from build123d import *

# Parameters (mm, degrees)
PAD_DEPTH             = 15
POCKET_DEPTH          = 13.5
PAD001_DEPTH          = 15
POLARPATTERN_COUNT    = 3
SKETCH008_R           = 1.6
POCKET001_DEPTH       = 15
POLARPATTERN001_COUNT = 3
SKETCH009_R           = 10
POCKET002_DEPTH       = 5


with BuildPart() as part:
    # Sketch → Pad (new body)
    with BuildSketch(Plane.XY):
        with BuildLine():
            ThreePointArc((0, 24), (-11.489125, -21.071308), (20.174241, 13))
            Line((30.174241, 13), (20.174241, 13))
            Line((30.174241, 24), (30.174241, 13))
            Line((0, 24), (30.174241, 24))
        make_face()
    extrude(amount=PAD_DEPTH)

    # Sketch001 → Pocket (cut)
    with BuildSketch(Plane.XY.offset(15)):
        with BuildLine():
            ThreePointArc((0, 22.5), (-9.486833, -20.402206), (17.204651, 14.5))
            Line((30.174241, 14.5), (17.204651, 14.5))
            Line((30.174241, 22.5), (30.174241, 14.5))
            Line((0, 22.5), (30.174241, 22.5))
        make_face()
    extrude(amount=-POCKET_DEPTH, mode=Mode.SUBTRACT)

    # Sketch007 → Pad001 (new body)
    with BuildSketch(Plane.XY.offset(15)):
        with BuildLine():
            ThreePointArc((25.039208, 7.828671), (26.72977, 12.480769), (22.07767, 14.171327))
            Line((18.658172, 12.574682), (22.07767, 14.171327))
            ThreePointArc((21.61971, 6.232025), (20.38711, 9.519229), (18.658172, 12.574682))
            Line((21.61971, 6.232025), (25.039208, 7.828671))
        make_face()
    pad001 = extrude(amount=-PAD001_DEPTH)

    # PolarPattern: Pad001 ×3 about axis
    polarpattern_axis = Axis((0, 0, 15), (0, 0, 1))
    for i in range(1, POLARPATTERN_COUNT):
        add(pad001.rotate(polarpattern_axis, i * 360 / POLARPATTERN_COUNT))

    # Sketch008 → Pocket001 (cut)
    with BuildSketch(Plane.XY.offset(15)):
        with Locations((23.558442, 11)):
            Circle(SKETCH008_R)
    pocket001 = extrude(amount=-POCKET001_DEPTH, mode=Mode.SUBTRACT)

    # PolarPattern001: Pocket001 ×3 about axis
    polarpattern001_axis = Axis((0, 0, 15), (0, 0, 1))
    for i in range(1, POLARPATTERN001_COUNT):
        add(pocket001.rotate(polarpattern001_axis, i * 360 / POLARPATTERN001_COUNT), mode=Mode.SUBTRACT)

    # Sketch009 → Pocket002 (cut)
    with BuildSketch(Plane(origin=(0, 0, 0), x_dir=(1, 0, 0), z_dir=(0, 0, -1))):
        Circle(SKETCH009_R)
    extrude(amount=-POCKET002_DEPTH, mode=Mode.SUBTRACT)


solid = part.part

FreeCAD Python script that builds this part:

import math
import FreeCAD as App
import Part
import Sketcher
from FreeCAD import Vector
Q = App.Units.Quantity

doc = App.newDocument("Part")
body = doc.addObject("PartDesign::Body", "Body")

# Sketch on XY plane
sketch1 = doc.addObject("Sketcher::SketchObject", "Sketch")
body.addObject(sketch1)
sketch1.AttachmentSupport = (doc.XY_Plane, [""])
sketch1.MapMode = "FlatFace"
sketch1.addGeometry([
    Part.ArcOfCircle(Part.Circle(Vector(0, 0, 0), Vector(0, 0, 1), 24), math.radians(90), math.radians(392.797168)),
    Part.LineSegment(Vector(20.174241, 13, 0), Vector(30.174241, 13, 0)),
    Part.LineSegment(Vector(30.174241, 13, 0), Vector(30.174241, 24, 0)),
    Part.LineSegment(Vector(30.174241, 24, 0), Vector(0, 24, 0)),
], False)
sketch1.addConstraint([
    Sketcher.Constraint("Coincident", 0, 2, 1, 1),
    Sketcher.Constraint("Coincident", 1, 2, 2, 1),
    Sketcher.Constraint("Coincident", 2, 2, 3, 1),
    Sketcher.Constraint("Tangent", 3, 2, 0, 1),
    Sketcher.Constraint("Horizontal", 1),
    Sketcher.Constraint("Vertical", 2),
    Sketcher.Constraint("Horizontal", 3),
    Sketcher.Constraint("Coincident", 0, 3, -1, 1),
    Sketcher.Constraint("Radius", 0, Q("24 mm")),
    Sketcher.Constraint("DistanceX", 1, 1, 1, 2, Q("10 mm")),
    Sketcher.Constraint("DistanceY", 2, 1, 2, 2, Q("11 mm")),
])
pad1 = doc.addObject("PartDesign::Pad", "Pad")
body.addObject(pad1)
pad1.Profile = sketch1
pad1.Length = 15

# Sketch on XY plane
sketch2 = doc.addObject("Sketcher::SketchObject", "Sketch001")
body.addObject(sketch2)
sketch2.AttachmentSupport = (doc.XY_Plane, [""])
sketch2.MapMode = "FlatFace"
sketch2.AttachmentOffset = App.Placement(Vector(0, 0, 15), App.Rotation())
sketch2.addGeometry([
    Part.ArcOfCircle(Part.Circle(Vector(0, 0, 0), Vector(0, 0, 1), 22.5), math.radians(90.000001), math.radians(400.124035)),
    Part.LineSegment(Vector(17.204651, 14.5, 0), Vector(30.174241, 14.5, 0)),
    Part.LineSegment(Vector(30.174241, 14.5, 0), Vector(30.174241, 22.5, 0)),
    Part.LineSegment(Vector(30.174241, 22.5, 0), Vector(0, 22.5, 0)),
], False)
sketch2.addConstraint([
    Sketcher.Constraint("Coincident", 0, 2, 1, 1),
    Sketcher.Constraint("Coincident", 1, 2, 2, 1),
    Sketcher.Constraint("Coincident", 2, 2, 3, 1),
    Sketcher.Constraint("Tangent", 3, 2, 0, 1),
    Sketcher.Constraint("Horizontal", 1),
    Sketcher.Constraint("Vertical", 2),
    Sketcher.Constraint("Horizontal", 3),
    Sketcher.Constraint("Coincident", 0, 3, -1, 1),
    Sketcher.Constraint("Radius", 0, Q("22.5 mm")),
    Sketcher.Constraint("DistanceY", 2, 1, 2, 2, Q("8 mm")),
    Sketcher.Constraint("DistanceX", 1, 1, 1, 2, Q("12.96959 mm")),
])
pocket1 = doc.addObject("PartDesign::Pocket", "Pocket")
body.addObject(pocket1)
pocket1.Profile = sketch2
pocket1.Length = 13.5

# Sketch on XY plane
sketch3 = doc.addObject("Sketcher::SketchObject", "Sketch002")
body.addObject(sketch3)
sketch3.AttachmentSupport = (doc.XY_Plane, [""])
sketch3.MapMode = "FlatFace"
sketch3.AttachmentOffset = App.Placement(Vector(0, 0, 15), App.Rotation())
sketch3.addGeometry([
    Part.ArcOfCircle(Part.Circle(Vector(23.558442, 11, 0), Vector(0, 0, 1), 3.5), math.radians(-64.971054), math.radians(115.029049)),
    Part.LineSegment(Vector(22.07767, 14.171327, 0), Vector(18.658172, 12.574682, 0)),
    Part.ArcOfCircle(Part.Circle(Vector(-0.000047, -0.000021, 0), Vector(0, 0, 1), 22.500051), math.radians(16.079996), math.radians(33.977992)),
    Part.LineSegment(Vector(21.61971, 6.232025, 0), Vector(25.039208, 7.828671, 0)),
], False)
sketch3.addConstraint([
    Sketcher.Constraint("Coincident", 0, 2, 1, 1),
    Sketcher.Constraint("Coincident", 1, 2, 2, 2),
    Sketcher.Constraint("Coincident", 2, 1, 3, 1),
    Sketcher.Constraint("Coincident", 3, 2, 0, 1),
    Sketcher.Constraint("Radius", 0, Q("3.5 mm")),
    Sketcher.Constraint("DistanceY", -1, 1, 0, 3, Q("11 mm")),
    Sketcher.Constraint("Radius", 2, Q("22.500051 mm")),
    Sketcher.Constraint("Distance", 1, Q("3.773889 mm")),
    Sketcher.Constraint("Distance", 3, Q("3.77389 mm")),
    Sketcher.Constraint("DistanceX", -1, 1, 0, 3, Q("23.558442 mm")),
    Sketcher.Constraint("DistanceX", -1, 1, 0, 2, Q("22.07767 mm")),
    Sketcher.Constraint("DistanceY", -1, 1, 1, 2, Q("12.574682 mm")),
    Sketcher.Constraint("DistanceX", -1, 1, 2, 1, Q("21.61971 mm")),
    Sketcher.Constraint("DistanceY", -1, 1, 3, 2, Q("7.828671 mm")),
])
pad2 = doc.addObject("PartDesign::Pad", "Pad001")
body.addObject(pad2)
pad2.Profile = sketch3
pad2.Length = 15
pad2.Reversed = True
doc.recompute()

polarpattern = doc.addObject("PartDesign::PolarPattern", "PolarPattern")
body.addObject(polarpattern)
polarpattern.Originals = [pad2]
polarpattern.Axis = (doc.Z_Axis, [""])
polarpattern.Angle = 360
polarpattern.Occurrences = 3
body.Tip = polarpattern

# Sketch on XY plane
sketch4 = doc.addObject("Sketcher::SketchObject", "Sketch003")
body.addObject(sketch4)
sketch4.AttachmentSupport = (doc.XY_Plane, [""])
sketch4.MapMode = "FlatFace"
sketch4.AttachmentOffset = App.Placement(Vector(0, 0, 15), App.Rotation())
sketch4.addGeometry(Part.Circle(Vector(23.558442, 11, 0), Vector(0, 0, 1), 1.6), False)
sketch4.addConstraint([
    Sketcher.Constraint("Diameter", 0, Q("3.2 mm")),
    Sketcher.Constraint("DistanceY", -1, 1, 0, 3, Q("11 mm")),
    Sketcher.Constraint("DistanceX", -1, 1, 0, 3, Q("23.558442 mm")),
])
pocket2 = doc.addObject("PartDesign::Pocket", "Pocket001")
body.addObject(pocket2)
pocket2.Profile = sketch4
pocket2.Length = 15
doc.recompute()

polarpattern2 = doc.addObject("PartDesign::PolarPattern", "PolarPattern001")
body.addObject(polarpattern2)
polarpattern2.Originals = [pocket2]
polarpattern2.Axis = (doc.Z_Axis, [""])
polarpattern2.Angle = 360
polarpattern2.Occurrences = 3
body.Tip = polarpattern2

# Sketch on XY plane
sketch5 = doc.addObject("Sketcher::SketchObject", "Sketch004")
body.addObject(sketch5)
sketch5.AttachmentSupport = (doc.XY_Plane, [""])
sketch5.MapMode = "FlatFace"
sketch5.addGeometry(Part.Circle(Vector(0, 0, 0), Vector(0, 0, 1), 10), False)
sketch5.addConstraint([
    Sketcher.Constraint("Coincident", 0, 3, -1, 1),
    Sketcher.Constraint("Diameter", 0, Q("20 mm")),
])
pocket3 = doc.addObject("PartDesign::Pocket", "Pocket002")
body.addObject(pocket3)
pocket3.Profile = sketch5
pocket3.Length = 5
pocket3.Reversed = True

doc.recompute()
